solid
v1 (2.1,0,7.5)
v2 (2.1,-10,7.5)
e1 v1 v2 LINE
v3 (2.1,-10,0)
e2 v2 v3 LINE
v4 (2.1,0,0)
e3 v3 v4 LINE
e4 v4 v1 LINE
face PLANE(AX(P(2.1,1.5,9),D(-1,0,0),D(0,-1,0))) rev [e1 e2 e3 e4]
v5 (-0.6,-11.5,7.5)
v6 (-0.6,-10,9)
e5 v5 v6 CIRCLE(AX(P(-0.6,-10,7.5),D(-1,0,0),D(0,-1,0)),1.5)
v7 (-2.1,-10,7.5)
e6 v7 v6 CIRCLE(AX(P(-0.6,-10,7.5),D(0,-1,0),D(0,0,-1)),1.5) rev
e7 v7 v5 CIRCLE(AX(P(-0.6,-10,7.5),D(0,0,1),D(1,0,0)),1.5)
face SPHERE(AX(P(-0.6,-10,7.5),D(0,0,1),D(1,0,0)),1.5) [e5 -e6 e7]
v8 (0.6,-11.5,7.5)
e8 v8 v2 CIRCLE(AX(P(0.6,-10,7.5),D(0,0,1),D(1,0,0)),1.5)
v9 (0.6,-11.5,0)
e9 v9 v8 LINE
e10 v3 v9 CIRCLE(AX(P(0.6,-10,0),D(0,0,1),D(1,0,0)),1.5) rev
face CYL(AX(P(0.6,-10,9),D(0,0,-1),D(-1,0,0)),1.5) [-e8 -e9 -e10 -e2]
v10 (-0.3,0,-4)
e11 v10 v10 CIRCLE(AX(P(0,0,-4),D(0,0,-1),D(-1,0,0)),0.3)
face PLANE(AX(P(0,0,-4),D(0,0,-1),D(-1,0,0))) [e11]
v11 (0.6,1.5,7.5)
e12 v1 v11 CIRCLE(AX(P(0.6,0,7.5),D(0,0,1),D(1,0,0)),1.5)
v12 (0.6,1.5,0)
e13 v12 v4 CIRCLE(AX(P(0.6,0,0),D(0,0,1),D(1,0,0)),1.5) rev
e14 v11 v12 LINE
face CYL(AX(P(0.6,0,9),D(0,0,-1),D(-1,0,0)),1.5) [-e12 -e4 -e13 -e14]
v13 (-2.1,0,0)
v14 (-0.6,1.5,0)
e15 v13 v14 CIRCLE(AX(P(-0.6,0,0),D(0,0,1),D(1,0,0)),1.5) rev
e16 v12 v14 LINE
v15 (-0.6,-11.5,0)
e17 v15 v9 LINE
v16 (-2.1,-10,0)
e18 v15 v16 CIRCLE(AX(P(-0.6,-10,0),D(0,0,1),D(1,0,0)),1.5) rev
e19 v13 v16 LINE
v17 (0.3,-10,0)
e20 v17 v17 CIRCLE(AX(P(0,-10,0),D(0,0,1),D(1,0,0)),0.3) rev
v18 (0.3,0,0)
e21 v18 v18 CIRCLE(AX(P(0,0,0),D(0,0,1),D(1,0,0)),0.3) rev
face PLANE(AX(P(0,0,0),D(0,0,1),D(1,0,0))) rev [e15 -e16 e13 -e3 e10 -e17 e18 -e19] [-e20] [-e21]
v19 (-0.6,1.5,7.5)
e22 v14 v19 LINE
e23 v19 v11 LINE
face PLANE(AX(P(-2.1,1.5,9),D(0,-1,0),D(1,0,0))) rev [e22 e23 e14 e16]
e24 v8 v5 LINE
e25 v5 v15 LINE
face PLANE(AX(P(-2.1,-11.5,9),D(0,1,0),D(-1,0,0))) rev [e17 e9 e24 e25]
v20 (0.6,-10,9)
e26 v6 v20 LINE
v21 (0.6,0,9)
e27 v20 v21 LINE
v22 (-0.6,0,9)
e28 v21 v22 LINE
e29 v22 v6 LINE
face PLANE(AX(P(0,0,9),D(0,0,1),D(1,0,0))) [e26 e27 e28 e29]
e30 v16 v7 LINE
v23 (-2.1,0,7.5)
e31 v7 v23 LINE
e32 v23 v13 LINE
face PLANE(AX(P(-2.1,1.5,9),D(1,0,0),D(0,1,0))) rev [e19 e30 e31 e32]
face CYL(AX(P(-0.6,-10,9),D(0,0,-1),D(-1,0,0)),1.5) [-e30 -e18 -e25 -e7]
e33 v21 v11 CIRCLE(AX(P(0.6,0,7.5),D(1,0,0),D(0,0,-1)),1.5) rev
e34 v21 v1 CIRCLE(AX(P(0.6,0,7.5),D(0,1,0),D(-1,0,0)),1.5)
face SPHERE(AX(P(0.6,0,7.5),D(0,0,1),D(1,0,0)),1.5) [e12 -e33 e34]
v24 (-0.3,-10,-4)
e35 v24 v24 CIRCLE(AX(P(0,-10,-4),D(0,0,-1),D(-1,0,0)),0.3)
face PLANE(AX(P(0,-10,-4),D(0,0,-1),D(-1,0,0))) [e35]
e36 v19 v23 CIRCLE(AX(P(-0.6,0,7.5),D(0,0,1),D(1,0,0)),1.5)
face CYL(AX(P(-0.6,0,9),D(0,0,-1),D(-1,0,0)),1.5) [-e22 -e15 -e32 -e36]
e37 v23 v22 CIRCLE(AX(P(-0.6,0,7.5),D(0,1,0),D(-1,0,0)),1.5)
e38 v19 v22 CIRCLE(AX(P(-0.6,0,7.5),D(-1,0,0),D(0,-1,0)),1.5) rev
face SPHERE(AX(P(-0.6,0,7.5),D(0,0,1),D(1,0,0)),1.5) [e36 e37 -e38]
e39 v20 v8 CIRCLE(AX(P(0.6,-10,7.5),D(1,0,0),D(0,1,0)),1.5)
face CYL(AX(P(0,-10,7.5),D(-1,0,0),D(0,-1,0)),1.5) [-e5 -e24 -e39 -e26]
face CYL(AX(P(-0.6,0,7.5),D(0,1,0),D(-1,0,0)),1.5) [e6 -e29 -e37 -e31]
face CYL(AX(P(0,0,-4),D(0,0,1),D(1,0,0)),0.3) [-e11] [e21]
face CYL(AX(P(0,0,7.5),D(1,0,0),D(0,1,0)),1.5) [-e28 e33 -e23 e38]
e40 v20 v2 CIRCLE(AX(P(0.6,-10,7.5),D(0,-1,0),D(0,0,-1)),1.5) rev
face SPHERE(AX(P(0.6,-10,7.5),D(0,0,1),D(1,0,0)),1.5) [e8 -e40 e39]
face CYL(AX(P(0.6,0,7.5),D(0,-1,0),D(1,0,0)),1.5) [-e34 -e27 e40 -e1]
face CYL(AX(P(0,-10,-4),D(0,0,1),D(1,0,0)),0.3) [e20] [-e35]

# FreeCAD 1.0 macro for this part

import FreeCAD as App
import Part
import Sketcher
from FreeCAD import Vector


def edges_at(feature, points):
    """Names of the edges that pass closest to the given points."""
    edges = feature.Shape.Edges
    near = lambda p: min(range(len(edges)), key=lambda i: edges[i].distToShape(Part.Vertex(*p))[0])
    return sorted({f"Edge{near(p) + 1}" for p in points})


def add_polygon(sketch, points):
    """Adds a closed chain of lines whose ends are joined by coincident constraints."""
    first, n = sketch.GeometryCount, len(points)
    for a, b in zip(points, points[1:] + points[:1]):
        sketch.addGeometry(Part.LineSegment(App.Vector(*a, 0), App.Vector(*b, 0)), False)
    for i in range(n):
        sketch.addConstraint(Sketcher.Constraint("Coincident", first + i, 2, first + (i + 1) % n, 1))

doc = App.newDocument("Part")
params = doc.addObject("Spreadsheet::Sheet", "Params")
for row, (alias, value) in enumerate([
    ("sketch1_height", "13 mm"),
    ("sketch1_width", "4.2 mm"),
    ("pad1_length", "9 mm"),
    ("sketch2_diameter", "0.6 mm"),
    ("pad2_length", "4 mm"),
    ("fillet_radius", "1.5 mm"),
], start=1):
    params.set(f"A{row}", alias)
    params.set(f"B{row}", "=" + value)
    params.setAlias(f"B{row}", alias)

body = doc.addObject("PartDesign::Body", "Body")

# Sketch on XY plane
sketch1 = doc.addObject("Sketcher::SketchObject", "Sketch")
body.addObject(sketch1)
sketch1.AttachmentSupport = (doc.XY_Plane, [""])
sketch1.MapMode = "FlatFace"
add_polygon(sketch1, [(-2.1, 1.5), (-2.1, -11.5), (2.1, -11.5), (2.1, 1.5)])  # lines 0-3
sketch1.addConstraint(Sketcher.Constraint("Vertical", 0))
sketch1.addConstraint(Sketcher.Constraint("Horizontal", 1))
sketch1.addConstraint(Sketcher.Constraint("Vertical", 2))
sketch1.addConstraint(Sketcher.Constraint("Horizontal", 3))
sketch1.addConstraint(Sketcher.Constraint("DistanceY", 0, 2, 0, 1, 13.0))
sketch1.addConstraint(Sketcher.Constraint("DistanceX", 1, 1, 1, 2, 4.2))
sketch1.addConstraint(Sketcher.Constraint("DistanceX", 0, 2, -1, 1, 2.1))
sketch1.addConstraint(Sketcher.Constraint("DistanceY", 0, 2, -1, 1, 11.5))
sketch1.setExpression("Constraints[8]", "Params.sketch1_height")
sketch1.setExpression("Constraints[9]", "Params.sketch1_width")
pad1 = doc.addObject("PartDesign::Pad", "Pad")
body.addObject(pad1)
pad1.Profile = sketch1
pad1.setExpression("Length", "Params.pad1_length")

# Sketch on XY plane
sketch2 = doc.addObject("Sketcher::SketchObject", "Sketch001")
body.addObject(sketch2)
sketch2.AttachmentSupport = (doc.XY_Plane, [""])
sketch2.MapMode = "FlatFace"
sketch2.addGeometry(Part.Circle(Vector(0, 0, 0), Vector(0, 0, 1), 0.3), False)
sketch2.addGeometry(Part.Circle(Vector(0, -10, 0), Vector(0, 0, 1), 0.3), False)
sketch2.addConstraint(Sketcher.Constraint("Coincident", 0, 3, -1, 1))
sketch2.addConstraint(Sketcher.Constraint("Equal", 0, 1))
sketch2.addConstraint(Sketcher.Constraint("PointOnObject", 1, 3, -2))
sketch2.addConstraint(Sketcher.Constraint("Diameter", 0, 0.6))
sketch2.addConstraint(Sketcher.Constraint("DistanceY", 1, 3, -1, 1, 10.0))
sketch2.setExpression("Constraints[3]", "Params.sketch2_diameter")
pad2 = doc.addObject("PartDesign::Pad", "Pad001")
body.addObject(pad2)
pad2.Profile = sketch2
pad2.setExpression("Length", "Params.pad2_length")
pad2.Reversed = True
doc.recompute()

fillet = doc.addObject("PartDesign::Fillet", "Fillet")
body.addObject(fillet)
fillet.Base = (pad2, edges_at(pad2, [
    (2.1, -5, 9),
    (0, 1.5, 9),
    (-2.1, -5, 9),
    (0, -11.5, 9),
    (-2.1, 1.5, 4.5),
    (2.1, 1.5, 4.5),
    (2.1, -11.5, 4.5),
    (-2.1, -11.5, 4.5),
]))
fillet.setExpression("Radius", "Params.fillet_radius")

doc.recompute()
